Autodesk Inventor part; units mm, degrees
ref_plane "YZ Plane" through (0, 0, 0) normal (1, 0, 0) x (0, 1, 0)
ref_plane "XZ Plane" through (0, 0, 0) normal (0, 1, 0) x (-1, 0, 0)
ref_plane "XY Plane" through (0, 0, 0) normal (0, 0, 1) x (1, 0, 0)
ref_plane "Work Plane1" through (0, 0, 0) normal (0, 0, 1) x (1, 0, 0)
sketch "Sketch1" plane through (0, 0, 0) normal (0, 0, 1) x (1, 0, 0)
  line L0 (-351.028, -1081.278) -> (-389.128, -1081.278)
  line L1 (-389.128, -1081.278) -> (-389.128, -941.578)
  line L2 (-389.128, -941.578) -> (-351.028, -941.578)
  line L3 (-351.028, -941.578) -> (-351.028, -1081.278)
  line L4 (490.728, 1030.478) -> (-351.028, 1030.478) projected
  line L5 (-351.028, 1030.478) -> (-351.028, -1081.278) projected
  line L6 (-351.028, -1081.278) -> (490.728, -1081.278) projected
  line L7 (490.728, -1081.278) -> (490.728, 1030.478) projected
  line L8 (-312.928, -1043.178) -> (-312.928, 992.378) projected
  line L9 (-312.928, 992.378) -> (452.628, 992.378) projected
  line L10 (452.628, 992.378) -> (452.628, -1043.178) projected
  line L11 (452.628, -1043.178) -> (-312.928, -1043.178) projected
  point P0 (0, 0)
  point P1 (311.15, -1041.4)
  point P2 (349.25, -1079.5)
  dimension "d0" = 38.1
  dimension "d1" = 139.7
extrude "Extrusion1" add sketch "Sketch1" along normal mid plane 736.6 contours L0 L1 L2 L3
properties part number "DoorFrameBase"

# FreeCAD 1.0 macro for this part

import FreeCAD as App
import Part
import Sketcher
Q = App.Units.Quantity


def add_polygon(sketch, points):
    """Adds a closed chain of lines whose ends are joined by coincident constraints."""
    first, n = sketch.GeometryCount, len(points)
    for a, b in zip(points, points[1:] + points[:1]):
        sketch.addGeometry(Part.LineSegment(App.Vector(*a, 0), App.Vector(*b, 0)), False)
    for i in range(n):
        sketch.addConstraint(Sketcher.Constraint("Coincident", first + i, 2, first + (i + 1) % n, 1))

doc = App.newDocument("Part")
body = doc.addObject("PartDesign::Body", "Body")

# Sketch on XY plane
sketch1 = body.newObject("Sketcher::SketchObject", "Sketch")
sketch1.AttachmentSupport = (doc.getObject("XY_Plane"), [""])
sketch1.MapMode = "FlatFace"
add_polygon(sketch1, [(-389, -1081), (-351, -1081), (-351, -942), (-389, -942)])  # lines 0-3
sketch1.addConstraint([
    Sketcher.Constraint("Horizontal", 0),
    Sketcher.Constraint("Vertical", 1),
    Sketcher.Constraint("Horizontal", 2),
    Sketcher.Constraint("Vertical", 3),
    Sketcher.Constraint("DistanceX", 0, 1, 0, 2, Q("1.5 in")),
    Sketcher.Constraint("DistanceY", 1, 1, 1, 2, Q("5.5 in")),
    Sketcher.Constraint("DistanceX", 0, 2, -1, 1, Q("13.82 in")),
    Sketcher.Constraint("DistanceY", 0, 2, -1, 1, Q("42.57 in")),
])
pad1 = body.newObject("PartDesign::Pad", "Pad")
pad1.Profile = sketch1
pad1.Length = Q("29 in")
pad1.Midplane = True

doc.recompute()
